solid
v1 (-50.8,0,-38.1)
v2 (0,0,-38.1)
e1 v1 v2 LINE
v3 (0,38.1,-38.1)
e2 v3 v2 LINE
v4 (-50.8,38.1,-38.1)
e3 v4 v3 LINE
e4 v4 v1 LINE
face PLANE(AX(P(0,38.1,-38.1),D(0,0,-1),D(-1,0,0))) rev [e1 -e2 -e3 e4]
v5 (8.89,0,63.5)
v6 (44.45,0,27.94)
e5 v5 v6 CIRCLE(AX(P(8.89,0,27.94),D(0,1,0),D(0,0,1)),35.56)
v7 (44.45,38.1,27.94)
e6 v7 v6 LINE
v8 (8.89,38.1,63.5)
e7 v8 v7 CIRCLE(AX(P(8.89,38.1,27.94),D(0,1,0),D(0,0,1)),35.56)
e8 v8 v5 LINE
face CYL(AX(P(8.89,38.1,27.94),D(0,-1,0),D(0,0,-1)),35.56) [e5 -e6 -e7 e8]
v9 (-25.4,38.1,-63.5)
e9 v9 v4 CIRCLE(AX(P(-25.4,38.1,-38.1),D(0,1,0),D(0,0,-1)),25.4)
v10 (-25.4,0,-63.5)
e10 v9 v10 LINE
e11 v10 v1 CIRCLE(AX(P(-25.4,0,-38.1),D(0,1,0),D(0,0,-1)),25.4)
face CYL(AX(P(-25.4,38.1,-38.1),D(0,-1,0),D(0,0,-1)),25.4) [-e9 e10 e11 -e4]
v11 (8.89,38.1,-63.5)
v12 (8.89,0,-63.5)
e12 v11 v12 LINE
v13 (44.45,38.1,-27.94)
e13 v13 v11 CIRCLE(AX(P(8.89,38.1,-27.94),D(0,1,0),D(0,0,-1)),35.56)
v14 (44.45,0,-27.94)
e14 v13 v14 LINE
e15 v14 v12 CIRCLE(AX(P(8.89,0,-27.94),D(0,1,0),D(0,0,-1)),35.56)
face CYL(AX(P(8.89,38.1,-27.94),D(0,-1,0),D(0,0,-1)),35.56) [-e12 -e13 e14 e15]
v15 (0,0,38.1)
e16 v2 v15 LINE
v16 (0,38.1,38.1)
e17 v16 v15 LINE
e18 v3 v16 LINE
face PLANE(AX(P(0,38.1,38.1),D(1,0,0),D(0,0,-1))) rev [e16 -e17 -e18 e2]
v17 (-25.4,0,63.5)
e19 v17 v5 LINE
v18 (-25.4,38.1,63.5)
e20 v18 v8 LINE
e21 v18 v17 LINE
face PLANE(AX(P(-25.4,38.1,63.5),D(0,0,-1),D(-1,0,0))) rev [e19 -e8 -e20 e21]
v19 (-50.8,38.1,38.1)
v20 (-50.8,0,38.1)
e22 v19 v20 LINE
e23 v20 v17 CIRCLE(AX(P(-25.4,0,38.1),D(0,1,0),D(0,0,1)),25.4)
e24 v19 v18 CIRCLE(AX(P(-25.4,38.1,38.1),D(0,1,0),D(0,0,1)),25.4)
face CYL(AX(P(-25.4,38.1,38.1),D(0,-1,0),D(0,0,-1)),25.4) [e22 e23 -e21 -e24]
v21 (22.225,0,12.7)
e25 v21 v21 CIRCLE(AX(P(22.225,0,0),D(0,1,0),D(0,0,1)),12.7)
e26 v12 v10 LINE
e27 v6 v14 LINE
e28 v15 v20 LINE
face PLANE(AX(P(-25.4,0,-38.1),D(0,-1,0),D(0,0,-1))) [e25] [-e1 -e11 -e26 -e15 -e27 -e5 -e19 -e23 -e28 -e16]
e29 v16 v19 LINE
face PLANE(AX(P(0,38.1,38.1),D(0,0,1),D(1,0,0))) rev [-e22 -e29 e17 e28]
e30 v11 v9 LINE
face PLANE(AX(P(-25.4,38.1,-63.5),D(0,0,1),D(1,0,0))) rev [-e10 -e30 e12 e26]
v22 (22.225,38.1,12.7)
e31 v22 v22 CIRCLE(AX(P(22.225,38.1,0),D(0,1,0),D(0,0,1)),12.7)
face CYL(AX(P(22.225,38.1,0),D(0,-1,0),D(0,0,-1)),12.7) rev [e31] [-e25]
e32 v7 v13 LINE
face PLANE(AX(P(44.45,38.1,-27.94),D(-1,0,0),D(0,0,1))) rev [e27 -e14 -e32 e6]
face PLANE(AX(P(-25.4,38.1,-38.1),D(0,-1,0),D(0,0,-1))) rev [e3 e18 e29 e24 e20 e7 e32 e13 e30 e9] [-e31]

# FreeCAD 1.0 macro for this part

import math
import FreeCAD as App
import Part
import Sketcher
Q = App.Units.Quantity

doc = App.newDocument("Part")
body = doc.addObject("PartDesign::Body", "Body")

# Sketch on XZ plane
sketch1 = doc.addObject("Sketcher::SketchObject", "Sketch")
body.addObject(sketch1)
sketch1.AttachmentSupport = (doc.XZ_Plane, [""])
sketch1.MapMode = "FlatFace"
sketch1.addGeometry([
    Part.LineSegment(App.Vector(0, -38, 0), App.Vector(0, 38, 0)),  # 0
    Part.LineSegment(App.Vector(0, 38, 0), App.Vector(-51, 38, 0)),  # 1
    Part.ArcOfCircle(Part.Circle(App.Vector(-25, 38, 0), App.Vector(0, 0, 1), 25), math.radians(90), math.radians(180)),  # 2
    Part.LineSegment(App.Vector(-25, 64, 0), App.Vector(9, 64, 0)),  # 3
    Part.ArcOfCircle(Part.Circle(App.Vector(9, 28, 0), App.Vector(0, 0, 1), 36), math.radians(0), math.radians(90)),  # 4
    Part.LineSegment(App.Vector(44, 28, 0), App.Vector(44, -28, 0)),  # 5
    Part.ArcOfCircle(Part.Circle(App.Vector(9, -28, 0), App.Vector(0, 0, 1), 36), math.radians(-90), math.radians(0)),  # 6
    Part.LineSegment(App.Vector(9, -64, 0), App.Vector(-25, -64, 0)),  # 7
    Part.ArcOfCircle(Part.Circle(App.Vector(-25, -38, 0), App.Vector(0, 0, 1), 25), math.radians(180), math.radians(270)),  # 8
    Part.LineSegment(App.Vector(-51, -38, 0), App.Vector(0, -38, 0)),  # 9
    Part.Circle(App.Vector(22, 0, 0), App.Vector(0, 0, 1), 13),  # 10
], False)
sketch1.addConstraint([
    Sketcher.Constraint("Coincident", 0, 2, 1, 1),
    Sketcher.Constraint("Coincident", 1, 2, 2, 2),
    Sketcher.Constraint("Tangent", 2, 1, 3, 1),
    Sketcher.Constraint("Tangent", 3, 2, 4, 2),
    Sketcher.Constraint("Tangent", 4, 1, 5, 1),
    Sketcher.Constraint("Tangent", 5, 2, 6, 2),
    Sketcher.Constraint("Tangent", 6, 1, 7, 1),
    Sketcher.Constraint("Tangent", 7, 2, 8, 2),
    Sketcher.Constraint("Coincident", 8, 1, 9, 1),
    Sketcher.Constraint("Coincident", 9, 2, 0, 1),
    Sketcher.Constraint("Vertical", 0),
    Sketcher.Constraint("Horizontal", 1),
    Sketcher.Constraint("Horizontal", 3),
    Sketcher.Constraint("Vertical", 5),
    Sketcher.Constraint("Horizontal", 7),
    Sketcher.Constraint("Horizontal", 9),
    Sketcher.Constraint("Equal", 4, 6),
    Sketcher.Constraint("Equal", 2, 8),
    Sketcher.Constraint("Symmetric", 0, 2, 9, 2, -1, 1),
    Sketcher.Constraint("Symmetric", 2, 3, 8, 3, -1),
    Sketcher.Constraint("PointOnObject", 10, 3, -1),
    Sketcher.Constraint("Horizontal", 2, 3, 0, 2),
    Sketcher.Constraint("Diameter", 10, Q("1 in")),
    Sketcher.Constraint("Radius", 2, Q("1 in")),
    Sketcher.Constraint("Radius", 4, Q("1.4 in")),
    Sketcher.Constraint("DistanceX", 1, 2, 1, 1, Q("2 in")),
    Sketcher.Constraint("DistanceY", 0, 1, 0, 2, Q("3 in")),
    Sketcher.Constraint("DistanceX", 3, 1, 3, 2, Q("1.35 in")),
    Sketcher.Constraint("DistanceX", -1, 1, 10, 3, Q("0.875 in")),
])
pad1 = doc.addObject("PartDesign::Pad", "Pad")
body.addObject(pad1)
pad1.Profile = sketch1
pad1.Length = Q("1.5 in")
pad1.Reversed = True

doc.recompute()
